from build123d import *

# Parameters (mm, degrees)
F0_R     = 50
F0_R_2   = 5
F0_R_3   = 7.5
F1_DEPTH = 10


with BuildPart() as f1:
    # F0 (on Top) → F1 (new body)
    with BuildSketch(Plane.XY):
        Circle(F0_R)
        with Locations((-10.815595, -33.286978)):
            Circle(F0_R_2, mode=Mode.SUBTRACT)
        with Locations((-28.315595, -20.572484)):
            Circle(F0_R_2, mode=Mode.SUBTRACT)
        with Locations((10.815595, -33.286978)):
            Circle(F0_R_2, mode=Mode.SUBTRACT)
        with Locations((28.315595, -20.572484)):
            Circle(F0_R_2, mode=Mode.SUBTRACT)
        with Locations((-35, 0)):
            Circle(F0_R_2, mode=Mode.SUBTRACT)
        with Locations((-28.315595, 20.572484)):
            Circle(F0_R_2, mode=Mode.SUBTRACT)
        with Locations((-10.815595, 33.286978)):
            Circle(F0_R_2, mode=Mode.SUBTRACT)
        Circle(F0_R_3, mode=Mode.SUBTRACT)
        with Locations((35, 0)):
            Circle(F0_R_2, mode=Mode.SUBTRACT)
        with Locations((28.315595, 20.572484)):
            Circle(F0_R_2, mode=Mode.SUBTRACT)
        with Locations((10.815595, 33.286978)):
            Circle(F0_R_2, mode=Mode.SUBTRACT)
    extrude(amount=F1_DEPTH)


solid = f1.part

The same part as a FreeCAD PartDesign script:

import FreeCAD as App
import Part
import Sketcher

V = App.Vector

doc = App.newDocument("Part")
body = doc.addObject("PartDesign::Body", "Body")

# Sketch on XY plane
sketch1 = body.newObject("Sketcher::SketchObject", "Sketch")
sketch1.AttachmentSupport = (doc.getObject("XY_Plane"), [""])
sketch1.MapMode = "FlatFace"
sketch1.addGeometry([
    Part.Circle(V(0, 0, 0), V(0, 0, 1), 50),  # 0
    Part.Circle(V(-28, -21, 0), V(0, 0, 1), 5),  # 1
    Part.Circle(V(-11, -33, 0), V(0, 0, 1), 5),  # 2
    Part.Circle(V(-35, 0, 0), V(0, 0, 1), 5),  # 3
    Part.Circle(V(11, -33, 0), V(0, 0, 1), 5),  # 4
    Part.Circle(V(28, -21, 0), V(0, 0, 1), 5),  # 5
    Part.Circle(V(0, 0, 0), V(0, 0, 1), 8),  # 6
    Part.Circle(V(35, 0, 0), V(0, 0, 1), 5),  # 7
    Part.Circle(V(-28, 21, 0), V(0, 0, 1), 5),  # 8
    Part.Circle(V(-11, 33, 0), V(0, 0, 1), 5),  # 9
    Part.Circle(V(11, 33, 0), V(0, 0, 1), 5),  # 10
    Part.Circle(V(28, 21, 0), V(0, 0, 1), 5),  # 11
], False)
sketch1.addConstraint([
    Sketcher.Constraint("Coincident", 0, 3, -1, 1),
    Sketcher.Constraint("Coincident", 6, 3, -1, 1),
    Sketcher.Constraint("Equal", 1, 2),
    Sketcher.Constraint("Equal", 2, 3),
    Sketcher.Constraint("Equal", 3, 4),
    Sketcher.Constraint("Equal", 4, 5),
    Sketcher.Constraint("Equal", 5, 7),
    Sketcher.Constraint("Equal", 7, 8),
    Sketcher.Constraint("Equal", 8, 9),
    Sketcher.Constraint("Equal", 9, 10),
    Sketcher.Constraint("Equal", 10, 11),
    Sketcher.Constraint("Symmetric", 3, 3, 7, 3, -1, 1),
    Sketcher.Constraint("Symmetric", 5, 3, 8, 3, -1, 1),
    Sketcher.Constraint("Symmetric", 4, 3, 9, 3, -1, 1),
    Sketcher.Constraint("Symmetric", 2, 3, 10, 3, -1, 1),
    Sketcher.Constraint("Symmetric", 1, 3, 11, 3, -1, 1),
    Sketcher.Constraint("Symmetric", 2, 3, 4, 3, -2),
    Sketcher.Constraint("Symmetric", 1, 3, 5, 3, -2),
    Sketcher.Constraint("PointOnObject", 3, 3, -1),
    Sketcher.Constraint("Diameter", 0, 100.0),
    Sketcher.Constraint("Diameter", 1, 10.0),
    Sketcher.Constraint("Diameter", 6, 15.0),
    Sketcher.Constraint("DistanceX", 3, 3, -1, 1, 35.0),
    Sketcher.Constraint("DistanceX", 1, 3, 2, 3, 17.5),
    Sketcher.Constraint("DistanceX", 2, 3, 4, 3, 21.63119),
    Sketcher.Constraint("DistanceY", 2, 3, 8, 3, 53.859462),
    Sketcher.Constraint("DistanceY", 1, 3, -1, 1, 20.572484),
])
pad1 = body.newObject("PartDesign::Pad", "Pad")
pad1.Profile = sketch1
pad1.Length = 10

doc.recompute()
